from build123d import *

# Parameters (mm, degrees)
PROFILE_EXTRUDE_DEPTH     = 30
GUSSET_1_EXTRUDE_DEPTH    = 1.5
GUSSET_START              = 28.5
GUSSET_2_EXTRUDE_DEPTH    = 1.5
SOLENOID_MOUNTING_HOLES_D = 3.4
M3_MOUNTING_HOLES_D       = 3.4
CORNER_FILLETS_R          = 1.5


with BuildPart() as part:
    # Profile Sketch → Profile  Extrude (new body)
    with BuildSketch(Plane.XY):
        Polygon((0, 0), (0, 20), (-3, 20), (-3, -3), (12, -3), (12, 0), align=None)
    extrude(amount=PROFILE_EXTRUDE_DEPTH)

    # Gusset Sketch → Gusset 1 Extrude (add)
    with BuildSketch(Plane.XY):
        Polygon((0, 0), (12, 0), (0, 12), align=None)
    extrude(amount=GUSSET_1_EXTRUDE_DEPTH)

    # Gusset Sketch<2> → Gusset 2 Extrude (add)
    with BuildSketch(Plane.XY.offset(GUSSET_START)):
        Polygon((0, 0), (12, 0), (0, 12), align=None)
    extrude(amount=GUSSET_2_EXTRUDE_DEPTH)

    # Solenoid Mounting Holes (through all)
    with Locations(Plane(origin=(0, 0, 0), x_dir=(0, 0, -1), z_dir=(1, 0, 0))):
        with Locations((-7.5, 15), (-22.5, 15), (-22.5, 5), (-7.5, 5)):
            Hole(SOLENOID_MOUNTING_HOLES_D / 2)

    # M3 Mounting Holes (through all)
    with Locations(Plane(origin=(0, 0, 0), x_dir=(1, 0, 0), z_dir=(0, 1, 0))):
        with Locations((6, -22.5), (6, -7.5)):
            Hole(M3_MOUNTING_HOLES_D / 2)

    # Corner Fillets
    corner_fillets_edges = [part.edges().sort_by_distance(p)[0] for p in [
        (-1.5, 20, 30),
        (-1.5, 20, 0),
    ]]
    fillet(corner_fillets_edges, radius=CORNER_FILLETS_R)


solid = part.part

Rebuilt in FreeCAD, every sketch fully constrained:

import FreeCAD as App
import Part
import Sketcher

V = App.Vector


def edges_at(feature, points):
    """Names of the edges that pass closest to the given points."""
    edges = feature.Shape.Edges
    near = lambda p: min(range(len(edges)), key=lambda i: edges[i].distToShape(Part.Vertex(*p))[0])
    return sorted({f"Edge{near(p) + 1}" for p in points})

doc = App.newDocument("Part")
body = doc.addObject("PartDesign::Body", "Body")

# Sketch on XY plane
sketch1 = body.newObject("Sketcher::SketchObject", "Sketch")
sketch1.AttachmentSupport = (doc.getObject("XY_Plane"), [""])
sketch1.MapMode = "FlatFace"
sketch1.addGeometry(Part.LineSegment(V(0, 0, 0), V(0, 20, 0)), False)
sketch1.addGeometry(Part.LineSegment(V(0, 20, 0), V(-3, 20, 0)), False)
sketch1.addGeometry(Part.LineSegment(V(-3, 20, 0), V(-3, -3, 0)), False)
sketch1.addGeometry(Part.LineSegment(V(-3, -3, 0), V(12, -3, 0)), False)
sketch1.addGeometry(Part.LineSegment(V(12, -3, 0), V(12, 0, 0)), False)
sketch1.addGeometry(Part.LineSegment(V(12, 0, 0), V(0, 0, 0)), False)
sketch1.addConstraint(Sketcher.Constraint("Coincident", 0, 2, 1, 1))
sketch1.addConstraint(Sketcher.Constraint("Coincident", 1, 2, 2, 1))
sketch1.addConstraint(Sketcher.Constraint("Coincident", 2, 2, 3, 1))
sketch1.addConstraint(Sketcher.Constraint("Coincident", 3, 2, 4, 1))
sketch1.addConstraint(Sketcher.Constraint("Coincident", 4, 2, 5, 1))
sketch1.addConstraint(Sketcher.Constraint("Coincident", 5, 2, 0, 1))
sketch1.addConstraint(Sketcher.Constraint("Vertical", 0))
sketch1.addConstraint(Sketcher.Constraint("Horizontal", 1))
sketch1.addConstraint(Sketcher.Constraint("Vertical", 2))
sketch1.addConstraint(Sketcher.Constraint("Horizontal", 3))
sketch1.addConstraint(Sketcher.Constraint("Vertical", 4))
sketch1.addConstraint(Sketcher.Constraint("Horizontal", 5))
sketch1.addConstraint(Sketcher.Constraint("Coincident", 5, 2, -1, 1))
sketch1.addConstraint(Sketcher.Constraint("Equal", 1, 4))
sketch1.addConstraint(Sketcher.Constraint("DistanceX", 1, 2, 1, 1, 3.0))
sketch1.addConstraint(Sketcher.Constraint("DistanceX", 3, 1, 3, 2, 15.0))
sketch1.addConstraint(Sketcher.Constraint("DistanceY", 0, 1, 0, 2, 20.0))
pad1 = body.newObject("PartDesign::Pad", "Pad")
pad1.Profile = sketch1
pad1.Length = 30

# Sketch on XY plane
sketch2 = body.newObject("Sketcher::SketchObject", "Sketch001")
sketch2.AttachmentSupport = (doc.getObject("XY_Plane"), [""])
sketch2.MapMode = "FlatFace"
sketch2.addGeometry(Part.LineSegment(V(0, 0, 0), V(12, 0, 0)), False)
sketch2.addGeometry(Part.LineSegment(V(12, 0, 0), V(0, 12, 0)), False)
sketch2.addGeometry(Part.LineSegment(V(0, 12, 0), V(0, 0, 0)), False)
sketch2.addConstraint(Sketcher.Constraint("Coincident", 0, 2, 1, 1))
sketch2.addConstraint(Sketcher.Constraint("Coincident", 1, 2, 2, 1))
sketch2.addConstraint(Sketcher.Constraint("Coincident", 2, 2, 0, 1))
sketch2.addConstraint(Sketcher.Constraint("Horizontal", 0))
sketch2.addConstraint(Sketcher.Constraint("Vertical", 2))
sketch2.addConstraint(Sketcher.Constraint("Coincident", 2, 2, -1, 1))
sketch2.addConstraint(Sketcher.Constraint("Equal", 0, 2))
sketch2.addConstraint(Sketcher.Constraint("DistanceX", 0, 1, 0, 2, 12.0))
pad2 = body.newObject("PartDesign::Pad", "Pad001")
pad2.Profile = sketch2
pad2.Length = 1.5

# Sketch on XY plane
sketch3 = body.newObject("Sketcher::SketchObject", "Sketch002")
sketch3.AttachmentSupport = (doc.getObject("XY_Plane"), [""])
sketch3.MapMode = "FlatFace"
sketch3.AttachmentOffset = App.Placement(V(0, 0, 28.5), App.Rotation())
sketch3.addGeometry(Part.LineSegment(V(0, 0, 0), V(12, 0, 0)), False)
sketch3.addGeometry(Part.LineSegment(V(12, 0, 0), V(0, 12, 0)), False)
sketch3.addGeometry(Part.LineSegment(V(0, 12, 0), V(0, 0, 0)), False)
sketch3.addConstraint(Sketcher.Constraint("Coincident", 0, 2, 1, 1))
sketch3.addConstraint(Sketcher.Constraint("Coincident", 1, 2, 2, 1))
sketch3.addConstraint(Sketcher.Constraint("Coincident", 2, 2, 0, 1))
sketch3.addConstraint(Sketcher.Constraint("Horizontal", 0))
sketch3.addConstraint(Sketcher.Constraint("Vertical", 2))
sketch3.addConstraint(Sketcher.Constraint("Coincident", 2, 2, -1, 1))
sketch3.addConstraint(Sketcher.Constraint("Equal", 0, 2))
sketch3.addConstraint(Sketcher.Constraint("DistanceX", 0, 1, 0, 2, 12.0))
pad3 = body.newObject("PartDesign::Pad", "Pad002")
pad3.Profile = sketch3
pad3.Length = 1.5

# Sketch on YZ plane
sketch4 = body.newObject("Sketcher::SketchObject", "Sketch003")
sketch4.AttachmentSupport = (doc.getObject("YZ_Plane"), [""])
sketch4.MapMode = "FlatFace"
sketch4.addGeometry(Part.Circle(V(15, 7.5, 0), V(0, 0, 1), 1.7), False)
sketch4.addGeometry(Part.Circle(V(15, 22.5, 0), V(0, 0, 1), 1.7), False)
sketch4.addGeometry(Part.Circle(V(5, 22.5, 0), V(0, 0, 1), 1.7), False)
sketch4.addGeometry(Part.Circle(V(5, 7.5, 0), V(0, 0, 1), 1.7), False)
sketch4.addConstraint(Sketcher.Constraint("Equal", 0, 1))
sketch4.addConstraint(Sketcher.Constraint("Equal", 1, 2))
sketch4.addConstraint(Sketcher.Constraint("Equal", 2, 3))
sketch4.addConstraint(Sketcher.Constraint("Horizontal", 1, 3, 2, 3))
sketch4.addConstraint(Sketcher.Constraint("Horizontal", 0, 3, 3, 3))
sketch4.addConstraint(Sketcher.Constraint("Vertical", 0, 3, 1, 3))
sketch4.addConstraint(Sketcher.Constraint("Vertical", 2, 3, 3, 3))
sketch4.addConstraint(Sketcher.Constraint("Diameter", 0, 3.4))
sketch4.addConstraint(Sketcher.Constraint("DistanceX", -1, 1, 0, 3, 15.0))
sketch4.addConstraint(Sketcher.Constraint("DistanceX", -1, 1, 2, 3, 5.0))
sketch4.addConstraint(Sketcher.Constraint("DistanceY", 0, 3, 1, 3, 15.0))
sketch4.addConstraint(Sketcher.Constraint("DistanceY", -1, 1, 0, 3, 7.5))
doc.recompute()
hole = body.newObject("PartDesign::Hole", "Hole")
hole.Profile = sketch4
hole.ThreadType = "None"
hole.Diameter = 3.4
hole.DepthType = "ThroughAll"

# Sketch on XZ plane
sketch5 = body.newObject("Sketcher::SketchObject", "Sketch004")
sketch5.AttachmentSupport = (doc.getObject("XZ_Plane"), [""])
sketch5.MapMode = "FlatFace"
sketch5.addGeometry(Part.Circle(V(6, 22.5, 0), V(0, 0, 1), 1.7), False)
sketch5.addGeometry(Part.Circle(V(6, 7.5, 0), V(0, 0, 1), 1.7), False)
sketch5.addConstraint(Sketcher.Constraint("Equal", 0, 1))
sketch5.addConstraint(Sketcher.Constraint("Vertical", 0, 3, 1, 3))
sketch5.addConstraint(Sketcher.Constraint("Diameter", 0, 3.4))
sketch5.addConstraint(Sketcher.Constraint("DistanceX", -1, 1, 0, 3, 6.0))
sketch5.addConstraint(Sketcher.Constraint("DistanceY", 1, 3, 0, 3, 15.0))
sketch5.addConstraint(Sketcher.Constraint("DistanceY", -1, 1, 0, 3, 22.5))
doc.recompute()
hole2 = body.newObject("PartDesign::Hole", "Hole001")
hole2.Profile = sketch5
hole2.ThreadType = "None"
hole2.Diameter = 3.4
hole2.DepthType = "ThroughAll"
hole2.Reversed = True
doc.recompute()

fillet = body.newObject("PartDesign::Fillet", "Fillet")
fillet.Base = (hole2, edges_at(hole2, [(-1.5, 20, 30), (-1.5, 20, 0)]))
fillet.Radius = 1.5

doc.recompute()
